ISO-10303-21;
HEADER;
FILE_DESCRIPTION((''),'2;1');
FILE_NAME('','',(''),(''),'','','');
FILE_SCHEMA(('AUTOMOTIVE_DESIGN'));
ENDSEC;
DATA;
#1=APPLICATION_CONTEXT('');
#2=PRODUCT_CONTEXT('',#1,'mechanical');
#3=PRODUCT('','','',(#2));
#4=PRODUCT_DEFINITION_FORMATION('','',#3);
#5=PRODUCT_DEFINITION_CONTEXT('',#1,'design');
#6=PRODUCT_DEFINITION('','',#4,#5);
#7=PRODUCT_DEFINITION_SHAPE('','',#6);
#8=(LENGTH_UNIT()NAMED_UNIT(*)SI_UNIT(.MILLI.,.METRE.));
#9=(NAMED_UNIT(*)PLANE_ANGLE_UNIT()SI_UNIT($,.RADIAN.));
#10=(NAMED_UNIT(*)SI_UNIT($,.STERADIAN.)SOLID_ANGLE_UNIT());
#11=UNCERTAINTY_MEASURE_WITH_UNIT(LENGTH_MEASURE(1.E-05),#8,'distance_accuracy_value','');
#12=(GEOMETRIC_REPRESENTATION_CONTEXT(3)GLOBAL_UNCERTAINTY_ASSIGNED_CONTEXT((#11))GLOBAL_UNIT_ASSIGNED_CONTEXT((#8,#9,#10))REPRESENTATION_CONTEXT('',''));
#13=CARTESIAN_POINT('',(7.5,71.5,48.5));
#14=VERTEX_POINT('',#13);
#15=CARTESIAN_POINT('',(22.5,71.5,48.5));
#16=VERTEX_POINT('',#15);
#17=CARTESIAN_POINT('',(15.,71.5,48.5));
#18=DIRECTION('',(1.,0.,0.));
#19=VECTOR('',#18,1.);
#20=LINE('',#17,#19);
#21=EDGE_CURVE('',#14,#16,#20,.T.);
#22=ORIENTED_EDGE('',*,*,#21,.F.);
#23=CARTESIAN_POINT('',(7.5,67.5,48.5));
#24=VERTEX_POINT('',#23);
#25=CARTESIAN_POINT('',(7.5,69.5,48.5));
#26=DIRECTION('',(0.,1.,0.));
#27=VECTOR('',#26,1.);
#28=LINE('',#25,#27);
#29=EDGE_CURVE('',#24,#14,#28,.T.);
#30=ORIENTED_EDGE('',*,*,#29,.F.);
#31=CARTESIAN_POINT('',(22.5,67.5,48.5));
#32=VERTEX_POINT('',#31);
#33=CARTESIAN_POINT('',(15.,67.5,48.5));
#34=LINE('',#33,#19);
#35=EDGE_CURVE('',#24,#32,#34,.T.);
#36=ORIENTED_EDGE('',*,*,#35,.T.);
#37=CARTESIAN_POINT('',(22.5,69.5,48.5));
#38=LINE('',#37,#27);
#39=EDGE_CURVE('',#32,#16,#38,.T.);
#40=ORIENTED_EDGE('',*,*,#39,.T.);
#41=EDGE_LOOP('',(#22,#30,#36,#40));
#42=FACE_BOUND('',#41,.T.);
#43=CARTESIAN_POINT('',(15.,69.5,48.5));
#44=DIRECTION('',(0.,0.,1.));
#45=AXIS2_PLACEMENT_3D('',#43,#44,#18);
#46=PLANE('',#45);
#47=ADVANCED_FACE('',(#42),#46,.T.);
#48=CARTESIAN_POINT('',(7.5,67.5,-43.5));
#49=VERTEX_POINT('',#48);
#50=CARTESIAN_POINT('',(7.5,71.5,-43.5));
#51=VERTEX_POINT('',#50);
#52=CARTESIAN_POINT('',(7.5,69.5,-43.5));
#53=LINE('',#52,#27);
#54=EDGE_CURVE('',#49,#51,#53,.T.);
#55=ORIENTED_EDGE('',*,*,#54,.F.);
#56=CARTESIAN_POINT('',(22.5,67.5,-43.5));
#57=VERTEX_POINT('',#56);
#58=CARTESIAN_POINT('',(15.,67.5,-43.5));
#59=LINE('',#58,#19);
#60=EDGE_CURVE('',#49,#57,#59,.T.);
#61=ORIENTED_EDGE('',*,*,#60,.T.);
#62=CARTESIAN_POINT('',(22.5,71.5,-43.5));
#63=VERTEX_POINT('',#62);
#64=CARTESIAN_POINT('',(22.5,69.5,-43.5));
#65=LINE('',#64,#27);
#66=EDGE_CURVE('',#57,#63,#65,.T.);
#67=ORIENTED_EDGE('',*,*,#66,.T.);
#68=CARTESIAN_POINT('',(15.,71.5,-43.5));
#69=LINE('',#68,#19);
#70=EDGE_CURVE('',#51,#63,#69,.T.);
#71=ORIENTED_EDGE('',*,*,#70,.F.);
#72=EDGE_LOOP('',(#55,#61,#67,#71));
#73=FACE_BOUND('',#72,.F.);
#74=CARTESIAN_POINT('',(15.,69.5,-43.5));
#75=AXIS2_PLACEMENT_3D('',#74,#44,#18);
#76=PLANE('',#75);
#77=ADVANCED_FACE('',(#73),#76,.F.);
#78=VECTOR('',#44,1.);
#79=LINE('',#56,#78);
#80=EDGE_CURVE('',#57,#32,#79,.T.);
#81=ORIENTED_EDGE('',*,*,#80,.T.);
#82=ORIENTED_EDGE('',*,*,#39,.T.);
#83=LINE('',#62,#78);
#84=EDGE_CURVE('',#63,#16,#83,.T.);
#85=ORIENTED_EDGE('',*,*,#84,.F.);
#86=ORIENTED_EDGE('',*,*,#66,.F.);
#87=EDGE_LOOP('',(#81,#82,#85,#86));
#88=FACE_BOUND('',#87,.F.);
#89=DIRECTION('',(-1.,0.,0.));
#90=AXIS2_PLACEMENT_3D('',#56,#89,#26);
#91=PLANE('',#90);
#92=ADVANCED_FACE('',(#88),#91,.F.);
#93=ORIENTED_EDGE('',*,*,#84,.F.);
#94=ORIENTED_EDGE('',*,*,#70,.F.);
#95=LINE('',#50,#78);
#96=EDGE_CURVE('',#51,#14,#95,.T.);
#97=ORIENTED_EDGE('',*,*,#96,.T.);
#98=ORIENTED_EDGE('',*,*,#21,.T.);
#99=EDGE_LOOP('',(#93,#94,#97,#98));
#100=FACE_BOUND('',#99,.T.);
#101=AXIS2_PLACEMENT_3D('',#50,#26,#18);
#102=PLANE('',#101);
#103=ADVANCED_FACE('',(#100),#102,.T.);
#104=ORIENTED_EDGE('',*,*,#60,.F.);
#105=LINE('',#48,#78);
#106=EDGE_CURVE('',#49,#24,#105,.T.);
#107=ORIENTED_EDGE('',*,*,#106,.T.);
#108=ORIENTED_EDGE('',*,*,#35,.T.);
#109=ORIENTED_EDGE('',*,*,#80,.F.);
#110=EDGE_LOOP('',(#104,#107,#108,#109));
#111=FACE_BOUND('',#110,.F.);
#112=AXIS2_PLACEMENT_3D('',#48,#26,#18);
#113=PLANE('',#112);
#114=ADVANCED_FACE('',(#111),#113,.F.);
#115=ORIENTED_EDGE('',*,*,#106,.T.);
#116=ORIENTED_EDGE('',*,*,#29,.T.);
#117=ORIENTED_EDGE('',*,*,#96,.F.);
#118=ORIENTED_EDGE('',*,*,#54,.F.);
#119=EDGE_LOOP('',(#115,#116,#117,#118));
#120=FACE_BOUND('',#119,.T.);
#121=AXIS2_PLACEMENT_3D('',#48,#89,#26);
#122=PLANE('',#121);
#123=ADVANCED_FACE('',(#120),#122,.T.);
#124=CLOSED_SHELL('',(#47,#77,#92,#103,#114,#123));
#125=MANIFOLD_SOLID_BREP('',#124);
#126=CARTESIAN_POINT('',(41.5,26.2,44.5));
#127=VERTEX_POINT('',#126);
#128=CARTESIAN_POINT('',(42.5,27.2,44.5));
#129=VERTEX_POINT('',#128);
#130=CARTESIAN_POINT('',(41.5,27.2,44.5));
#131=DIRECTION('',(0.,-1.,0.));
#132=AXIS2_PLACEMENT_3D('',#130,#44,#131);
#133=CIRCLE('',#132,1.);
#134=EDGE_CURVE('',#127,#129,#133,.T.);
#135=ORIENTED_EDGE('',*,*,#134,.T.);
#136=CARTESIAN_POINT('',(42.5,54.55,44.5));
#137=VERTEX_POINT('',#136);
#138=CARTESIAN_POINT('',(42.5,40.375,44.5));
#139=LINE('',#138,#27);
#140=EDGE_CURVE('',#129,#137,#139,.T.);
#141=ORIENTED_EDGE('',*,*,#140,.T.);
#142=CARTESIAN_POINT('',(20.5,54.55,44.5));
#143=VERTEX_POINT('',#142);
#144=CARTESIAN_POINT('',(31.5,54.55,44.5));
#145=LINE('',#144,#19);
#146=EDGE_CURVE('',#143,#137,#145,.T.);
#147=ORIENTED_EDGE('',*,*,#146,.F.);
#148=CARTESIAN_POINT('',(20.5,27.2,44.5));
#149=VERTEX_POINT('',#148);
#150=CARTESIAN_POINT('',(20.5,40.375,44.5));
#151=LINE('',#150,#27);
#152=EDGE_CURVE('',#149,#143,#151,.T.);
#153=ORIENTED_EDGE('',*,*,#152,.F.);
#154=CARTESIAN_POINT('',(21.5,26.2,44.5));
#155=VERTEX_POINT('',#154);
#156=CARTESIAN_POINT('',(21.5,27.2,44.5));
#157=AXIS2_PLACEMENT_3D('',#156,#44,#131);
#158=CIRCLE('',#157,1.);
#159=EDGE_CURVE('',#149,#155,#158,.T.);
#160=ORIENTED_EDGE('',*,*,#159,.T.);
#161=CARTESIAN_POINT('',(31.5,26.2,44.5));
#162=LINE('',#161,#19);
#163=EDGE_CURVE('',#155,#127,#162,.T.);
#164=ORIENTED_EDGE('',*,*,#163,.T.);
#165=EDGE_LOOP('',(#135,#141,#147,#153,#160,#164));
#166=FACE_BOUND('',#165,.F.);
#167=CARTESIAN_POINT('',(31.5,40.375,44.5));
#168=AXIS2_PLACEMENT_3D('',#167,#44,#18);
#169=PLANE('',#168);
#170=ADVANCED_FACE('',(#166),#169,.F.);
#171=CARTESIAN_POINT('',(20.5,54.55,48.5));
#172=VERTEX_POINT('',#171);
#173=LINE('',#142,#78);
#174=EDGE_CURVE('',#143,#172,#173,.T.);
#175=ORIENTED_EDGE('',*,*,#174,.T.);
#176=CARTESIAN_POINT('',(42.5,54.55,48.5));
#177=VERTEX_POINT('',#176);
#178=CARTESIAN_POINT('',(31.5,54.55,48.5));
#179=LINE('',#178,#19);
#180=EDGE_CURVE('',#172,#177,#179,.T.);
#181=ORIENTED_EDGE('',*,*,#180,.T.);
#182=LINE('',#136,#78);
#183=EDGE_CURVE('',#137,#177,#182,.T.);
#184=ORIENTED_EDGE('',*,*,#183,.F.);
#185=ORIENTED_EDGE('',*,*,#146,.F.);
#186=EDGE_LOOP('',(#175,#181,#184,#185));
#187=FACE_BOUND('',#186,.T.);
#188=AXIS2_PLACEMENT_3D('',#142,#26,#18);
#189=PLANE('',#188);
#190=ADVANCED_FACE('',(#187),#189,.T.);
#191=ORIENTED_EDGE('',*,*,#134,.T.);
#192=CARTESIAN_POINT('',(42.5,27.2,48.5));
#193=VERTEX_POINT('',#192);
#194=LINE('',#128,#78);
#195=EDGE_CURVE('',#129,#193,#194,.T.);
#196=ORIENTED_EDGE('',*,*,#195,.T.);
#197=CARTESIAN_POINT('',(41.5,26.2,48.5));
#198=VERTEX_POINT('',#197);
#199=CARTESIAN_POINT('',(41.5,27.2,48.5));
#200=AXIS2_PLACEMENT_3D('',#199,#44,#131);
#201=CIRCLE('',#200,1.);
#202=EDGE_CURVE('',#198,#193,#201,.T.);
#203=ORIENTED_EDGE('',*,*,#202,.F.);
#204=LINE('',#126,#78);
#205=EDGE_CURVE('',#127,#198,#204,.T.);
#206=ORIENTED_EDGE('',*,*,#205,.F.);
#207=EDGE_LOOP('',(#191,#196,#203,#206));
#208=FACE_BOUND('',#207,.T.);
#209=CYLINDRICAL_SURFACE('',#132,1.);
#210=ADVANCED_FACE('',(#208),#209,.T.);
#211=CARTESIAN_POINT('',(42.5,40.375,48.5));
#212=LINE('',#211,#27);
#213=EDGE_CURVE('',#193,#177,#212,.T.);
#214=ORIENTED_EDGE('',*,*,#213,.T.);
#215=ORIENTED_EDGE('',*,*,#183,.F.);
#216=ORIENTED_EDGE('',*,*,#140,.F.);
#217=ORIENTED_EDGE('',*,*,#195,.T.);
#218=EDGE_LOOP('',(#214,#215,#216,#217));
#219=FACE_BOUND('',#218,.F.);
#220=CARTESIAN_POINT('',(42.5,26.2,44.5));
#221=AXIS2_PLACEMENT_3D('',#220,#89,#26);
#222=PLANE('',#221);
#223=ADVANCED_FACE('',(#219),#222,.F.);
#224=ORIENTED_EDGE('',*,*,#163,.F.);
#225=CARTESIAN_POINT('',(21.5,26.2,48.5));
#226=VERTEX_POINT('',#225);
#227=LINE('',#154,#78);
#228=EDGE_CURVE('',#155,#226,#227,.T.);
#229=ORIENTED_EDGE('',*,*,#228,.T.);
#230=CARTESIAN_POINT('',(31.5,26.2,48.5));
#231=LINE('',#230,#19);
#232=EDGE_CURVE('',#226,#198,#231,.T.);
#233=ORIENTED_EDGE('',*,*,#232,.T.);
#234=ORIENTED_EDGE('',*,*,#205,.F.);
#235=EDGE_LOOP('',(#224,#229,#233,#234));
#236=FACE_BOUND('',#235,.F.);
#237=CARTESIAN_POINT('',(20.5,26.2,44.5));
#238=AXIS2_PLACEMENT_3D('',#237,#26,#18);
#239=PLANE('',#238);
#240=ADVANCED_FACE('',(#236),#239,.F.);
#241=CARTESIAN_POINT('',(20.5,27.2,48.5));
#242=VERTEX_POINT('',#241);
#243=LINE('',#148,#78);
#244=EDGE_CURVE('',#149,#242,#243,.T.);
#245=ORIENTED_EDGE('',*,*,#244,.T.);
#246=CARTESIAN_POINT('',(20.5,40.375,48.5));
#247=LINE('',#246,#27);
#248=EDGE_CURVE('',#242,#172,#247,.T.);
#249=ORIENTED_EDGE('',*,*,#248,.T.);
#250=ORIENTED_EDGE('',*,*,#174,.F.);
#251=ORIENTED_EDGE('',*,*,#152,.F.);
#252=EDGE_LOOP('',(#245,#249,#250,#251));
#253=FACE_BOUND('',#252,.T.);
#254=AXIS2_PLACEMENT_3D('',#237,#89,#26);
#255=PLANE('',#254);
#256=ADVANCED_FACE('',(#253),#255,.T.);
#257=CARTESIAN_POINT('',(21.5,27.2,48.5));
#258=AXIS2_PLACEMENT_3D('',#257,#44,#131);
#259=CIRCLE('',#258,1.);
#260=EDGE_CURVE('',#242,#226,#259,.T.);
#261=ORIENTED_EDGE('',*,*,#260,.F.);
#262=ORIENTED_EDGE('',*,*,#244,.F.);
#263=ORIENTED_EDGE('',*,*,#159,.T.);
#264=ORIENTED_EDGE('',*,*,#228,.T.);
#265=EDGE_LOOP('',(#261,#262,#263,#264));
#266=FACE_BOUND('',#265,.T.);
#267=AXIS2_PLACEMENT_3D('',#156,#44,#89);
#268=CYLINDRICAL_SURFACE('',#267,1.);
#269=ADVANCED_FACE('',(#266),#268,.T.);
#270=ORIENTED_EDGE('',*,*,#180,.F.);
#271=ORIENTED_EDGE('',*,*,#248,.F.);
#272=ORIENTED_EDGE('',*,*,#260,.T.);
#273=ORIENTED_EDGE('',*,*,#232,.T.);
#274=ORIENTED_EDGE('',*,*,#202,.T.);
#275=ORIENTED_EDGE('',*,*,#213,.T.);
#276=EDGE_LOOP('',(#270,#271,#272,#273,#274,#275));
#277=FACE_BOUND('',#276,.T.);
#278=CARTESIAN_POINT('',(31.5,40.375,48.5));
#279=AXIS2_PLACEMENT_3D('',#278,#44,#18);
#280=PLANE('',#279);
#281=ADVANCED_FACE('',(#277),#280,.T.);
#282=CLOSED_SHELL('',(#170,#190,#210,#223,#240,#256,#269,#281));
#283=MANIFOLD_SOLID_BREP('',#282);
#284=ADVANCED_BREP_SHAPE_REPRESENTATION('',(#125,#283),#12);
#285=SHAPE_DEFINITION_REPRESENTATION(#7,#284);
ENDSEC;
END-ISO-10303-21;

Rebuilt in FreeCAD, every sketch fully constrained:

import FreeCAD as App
import Part
import Sketcher


def edges_at(feature, points):
    """Names of the edges that pass closest to the given points."""
    edges = feature.Shape.Edges
    near = lambda p: min(range(len(edges)), key=lambda i: edges[i].distToShape(Part.Vertex(*p))[0])
    return sorted({f"Edge{near(p) + 1}" for p in points})


def add_polygon(sketch, points):
    """Adds a closed chain of lines whose ends are joined by coincident constraints."""
    first, n = sketch.GeometryCount, len(points)
    for a, b in zip(points, points[1:] + points[:1]):
        sketch.addGeometry(Part.LineSegment(App.Vector(*a, 0), App.Vector(*b, 0)), False)
    for i in range(n):
        sketch.addConstraint(Sketcher.Constraint("Coincident", first + i, 2, first + (i + 1) % n, 1))

doc = App.newDocument("Part")
body = doc.addObject("PartDesign::Body", "Body")

# Sketch on XY plane
sketch1 = body.newObject("Sketcher::SketchObject", "Sketch")
sketch1.AttachmentSupport = (doc.getObject("XY_Plane"), [""])
sketch1.MapMode = "FlatFace"
sketch1.AttachmentOffset = App.Placement(App.Vector(0, 0, 44.5), App.Rotation())
add_polygon(sketch1, [(20.5, 54.55), (20.5, 26.2), (42.5, 26.2), (42.5, 54.55)])  # lines 0-3
sketch1.addConstraint(Sketcher.Constraint("Vertical", 0))
sketch1.addConstraint(Sketcher.Constraint("Horizontal", 1))
sketch1.addConstraint(Sketcher.Constraint("Vertical", 2))
sketch1.addConstraint(Sketcher.Constraint("Horizontal", 3))
sketch1.addConstraint(Sketcher.Constraint("DistanceX", 1, 1, 1, 2, 22.0))
sketch1.addConstraint(Sketcher.Constraint("DistanceY", 0, 2, 0, 1, 28.35))
sketch1.addConstraint(Sketcher.Constraint("DistanceX", -1, 1, 0, 2, 20.5))
sketch1.addConstraint(Sketcher.Constraint("DistanceY", -1, 1, 0, 2, 26.2))
pad1 = body.newObject("PartDesign::Pad", "Pad")
pad1.Profile = sketch1
pad1.Length = 4
doc.recompute()

fillet = body.newObject("PartDesign::Fillet", "Fillet")
fillet.Base = (pad1, edges_at(pad1, [(20.5, 26.2, 46.5), (42.5, 26.2, 46.5)]))
fillet.Radius = 1
body2 = doc.addObject("PartDesign::Body", "Body001")
body2.AllowCompound = True

# Sketch on XY plane
sketch2 = body2.newObject("Sketcher::SketchObject", "Sketch001")
sketch2.AttachmentSupport = (doc.getObject("XY_Plane001"), [""])
sketch2.MapMode = "FlatFace"
sketch2.AttachmentOffset = App.Placement(App.Vector(0, 0, -43.5), App.Rotation())
add_polygon(sketch2, [(7.5, 71.5), (7.5, 67.5), (22.5, 67.5), (22.5, 71.5)])  # lines 0-3
sketch2.addConstraint(Sketcher.Constraint("Vertical", 0))
sketch2.addConstraint(Sketcher.Constraint("Horizontal", 1))
sketch2.addConstraint(Sketcher.Constraint("Vertical", 2))
sketch2.addConstraint(Sketcher.Constraint("Horizontal", 3))
sketch2.addConstraint(Sketcher.Constraint("DistanceX", 1, 1, 1, 2, 15.0))
sketch2.addConstraint(Sketcher.Constraint("DistanceY", 0, 2, 0, 1, 4.0))
sketch2.addConstraint(Sketcher.Constraint("DistanceX", -1, 1, 0, 2, 7.5))
sketch2.addConstraint(Sketcher.Constraint("DistanceY", -1, 1, 0, 2, 67.5))
pad2 = body2.newObject("PartDesign::Pad", "Pad001")
pad2.Profile = sketch2
pad2.Length = 92
doc.recompute()

boolean = body2.newObject("PartDesign::Boolean", "Boolean")
boolean.Type = "Fuse"
boolean.addObjects([body])

doc.recompute()
